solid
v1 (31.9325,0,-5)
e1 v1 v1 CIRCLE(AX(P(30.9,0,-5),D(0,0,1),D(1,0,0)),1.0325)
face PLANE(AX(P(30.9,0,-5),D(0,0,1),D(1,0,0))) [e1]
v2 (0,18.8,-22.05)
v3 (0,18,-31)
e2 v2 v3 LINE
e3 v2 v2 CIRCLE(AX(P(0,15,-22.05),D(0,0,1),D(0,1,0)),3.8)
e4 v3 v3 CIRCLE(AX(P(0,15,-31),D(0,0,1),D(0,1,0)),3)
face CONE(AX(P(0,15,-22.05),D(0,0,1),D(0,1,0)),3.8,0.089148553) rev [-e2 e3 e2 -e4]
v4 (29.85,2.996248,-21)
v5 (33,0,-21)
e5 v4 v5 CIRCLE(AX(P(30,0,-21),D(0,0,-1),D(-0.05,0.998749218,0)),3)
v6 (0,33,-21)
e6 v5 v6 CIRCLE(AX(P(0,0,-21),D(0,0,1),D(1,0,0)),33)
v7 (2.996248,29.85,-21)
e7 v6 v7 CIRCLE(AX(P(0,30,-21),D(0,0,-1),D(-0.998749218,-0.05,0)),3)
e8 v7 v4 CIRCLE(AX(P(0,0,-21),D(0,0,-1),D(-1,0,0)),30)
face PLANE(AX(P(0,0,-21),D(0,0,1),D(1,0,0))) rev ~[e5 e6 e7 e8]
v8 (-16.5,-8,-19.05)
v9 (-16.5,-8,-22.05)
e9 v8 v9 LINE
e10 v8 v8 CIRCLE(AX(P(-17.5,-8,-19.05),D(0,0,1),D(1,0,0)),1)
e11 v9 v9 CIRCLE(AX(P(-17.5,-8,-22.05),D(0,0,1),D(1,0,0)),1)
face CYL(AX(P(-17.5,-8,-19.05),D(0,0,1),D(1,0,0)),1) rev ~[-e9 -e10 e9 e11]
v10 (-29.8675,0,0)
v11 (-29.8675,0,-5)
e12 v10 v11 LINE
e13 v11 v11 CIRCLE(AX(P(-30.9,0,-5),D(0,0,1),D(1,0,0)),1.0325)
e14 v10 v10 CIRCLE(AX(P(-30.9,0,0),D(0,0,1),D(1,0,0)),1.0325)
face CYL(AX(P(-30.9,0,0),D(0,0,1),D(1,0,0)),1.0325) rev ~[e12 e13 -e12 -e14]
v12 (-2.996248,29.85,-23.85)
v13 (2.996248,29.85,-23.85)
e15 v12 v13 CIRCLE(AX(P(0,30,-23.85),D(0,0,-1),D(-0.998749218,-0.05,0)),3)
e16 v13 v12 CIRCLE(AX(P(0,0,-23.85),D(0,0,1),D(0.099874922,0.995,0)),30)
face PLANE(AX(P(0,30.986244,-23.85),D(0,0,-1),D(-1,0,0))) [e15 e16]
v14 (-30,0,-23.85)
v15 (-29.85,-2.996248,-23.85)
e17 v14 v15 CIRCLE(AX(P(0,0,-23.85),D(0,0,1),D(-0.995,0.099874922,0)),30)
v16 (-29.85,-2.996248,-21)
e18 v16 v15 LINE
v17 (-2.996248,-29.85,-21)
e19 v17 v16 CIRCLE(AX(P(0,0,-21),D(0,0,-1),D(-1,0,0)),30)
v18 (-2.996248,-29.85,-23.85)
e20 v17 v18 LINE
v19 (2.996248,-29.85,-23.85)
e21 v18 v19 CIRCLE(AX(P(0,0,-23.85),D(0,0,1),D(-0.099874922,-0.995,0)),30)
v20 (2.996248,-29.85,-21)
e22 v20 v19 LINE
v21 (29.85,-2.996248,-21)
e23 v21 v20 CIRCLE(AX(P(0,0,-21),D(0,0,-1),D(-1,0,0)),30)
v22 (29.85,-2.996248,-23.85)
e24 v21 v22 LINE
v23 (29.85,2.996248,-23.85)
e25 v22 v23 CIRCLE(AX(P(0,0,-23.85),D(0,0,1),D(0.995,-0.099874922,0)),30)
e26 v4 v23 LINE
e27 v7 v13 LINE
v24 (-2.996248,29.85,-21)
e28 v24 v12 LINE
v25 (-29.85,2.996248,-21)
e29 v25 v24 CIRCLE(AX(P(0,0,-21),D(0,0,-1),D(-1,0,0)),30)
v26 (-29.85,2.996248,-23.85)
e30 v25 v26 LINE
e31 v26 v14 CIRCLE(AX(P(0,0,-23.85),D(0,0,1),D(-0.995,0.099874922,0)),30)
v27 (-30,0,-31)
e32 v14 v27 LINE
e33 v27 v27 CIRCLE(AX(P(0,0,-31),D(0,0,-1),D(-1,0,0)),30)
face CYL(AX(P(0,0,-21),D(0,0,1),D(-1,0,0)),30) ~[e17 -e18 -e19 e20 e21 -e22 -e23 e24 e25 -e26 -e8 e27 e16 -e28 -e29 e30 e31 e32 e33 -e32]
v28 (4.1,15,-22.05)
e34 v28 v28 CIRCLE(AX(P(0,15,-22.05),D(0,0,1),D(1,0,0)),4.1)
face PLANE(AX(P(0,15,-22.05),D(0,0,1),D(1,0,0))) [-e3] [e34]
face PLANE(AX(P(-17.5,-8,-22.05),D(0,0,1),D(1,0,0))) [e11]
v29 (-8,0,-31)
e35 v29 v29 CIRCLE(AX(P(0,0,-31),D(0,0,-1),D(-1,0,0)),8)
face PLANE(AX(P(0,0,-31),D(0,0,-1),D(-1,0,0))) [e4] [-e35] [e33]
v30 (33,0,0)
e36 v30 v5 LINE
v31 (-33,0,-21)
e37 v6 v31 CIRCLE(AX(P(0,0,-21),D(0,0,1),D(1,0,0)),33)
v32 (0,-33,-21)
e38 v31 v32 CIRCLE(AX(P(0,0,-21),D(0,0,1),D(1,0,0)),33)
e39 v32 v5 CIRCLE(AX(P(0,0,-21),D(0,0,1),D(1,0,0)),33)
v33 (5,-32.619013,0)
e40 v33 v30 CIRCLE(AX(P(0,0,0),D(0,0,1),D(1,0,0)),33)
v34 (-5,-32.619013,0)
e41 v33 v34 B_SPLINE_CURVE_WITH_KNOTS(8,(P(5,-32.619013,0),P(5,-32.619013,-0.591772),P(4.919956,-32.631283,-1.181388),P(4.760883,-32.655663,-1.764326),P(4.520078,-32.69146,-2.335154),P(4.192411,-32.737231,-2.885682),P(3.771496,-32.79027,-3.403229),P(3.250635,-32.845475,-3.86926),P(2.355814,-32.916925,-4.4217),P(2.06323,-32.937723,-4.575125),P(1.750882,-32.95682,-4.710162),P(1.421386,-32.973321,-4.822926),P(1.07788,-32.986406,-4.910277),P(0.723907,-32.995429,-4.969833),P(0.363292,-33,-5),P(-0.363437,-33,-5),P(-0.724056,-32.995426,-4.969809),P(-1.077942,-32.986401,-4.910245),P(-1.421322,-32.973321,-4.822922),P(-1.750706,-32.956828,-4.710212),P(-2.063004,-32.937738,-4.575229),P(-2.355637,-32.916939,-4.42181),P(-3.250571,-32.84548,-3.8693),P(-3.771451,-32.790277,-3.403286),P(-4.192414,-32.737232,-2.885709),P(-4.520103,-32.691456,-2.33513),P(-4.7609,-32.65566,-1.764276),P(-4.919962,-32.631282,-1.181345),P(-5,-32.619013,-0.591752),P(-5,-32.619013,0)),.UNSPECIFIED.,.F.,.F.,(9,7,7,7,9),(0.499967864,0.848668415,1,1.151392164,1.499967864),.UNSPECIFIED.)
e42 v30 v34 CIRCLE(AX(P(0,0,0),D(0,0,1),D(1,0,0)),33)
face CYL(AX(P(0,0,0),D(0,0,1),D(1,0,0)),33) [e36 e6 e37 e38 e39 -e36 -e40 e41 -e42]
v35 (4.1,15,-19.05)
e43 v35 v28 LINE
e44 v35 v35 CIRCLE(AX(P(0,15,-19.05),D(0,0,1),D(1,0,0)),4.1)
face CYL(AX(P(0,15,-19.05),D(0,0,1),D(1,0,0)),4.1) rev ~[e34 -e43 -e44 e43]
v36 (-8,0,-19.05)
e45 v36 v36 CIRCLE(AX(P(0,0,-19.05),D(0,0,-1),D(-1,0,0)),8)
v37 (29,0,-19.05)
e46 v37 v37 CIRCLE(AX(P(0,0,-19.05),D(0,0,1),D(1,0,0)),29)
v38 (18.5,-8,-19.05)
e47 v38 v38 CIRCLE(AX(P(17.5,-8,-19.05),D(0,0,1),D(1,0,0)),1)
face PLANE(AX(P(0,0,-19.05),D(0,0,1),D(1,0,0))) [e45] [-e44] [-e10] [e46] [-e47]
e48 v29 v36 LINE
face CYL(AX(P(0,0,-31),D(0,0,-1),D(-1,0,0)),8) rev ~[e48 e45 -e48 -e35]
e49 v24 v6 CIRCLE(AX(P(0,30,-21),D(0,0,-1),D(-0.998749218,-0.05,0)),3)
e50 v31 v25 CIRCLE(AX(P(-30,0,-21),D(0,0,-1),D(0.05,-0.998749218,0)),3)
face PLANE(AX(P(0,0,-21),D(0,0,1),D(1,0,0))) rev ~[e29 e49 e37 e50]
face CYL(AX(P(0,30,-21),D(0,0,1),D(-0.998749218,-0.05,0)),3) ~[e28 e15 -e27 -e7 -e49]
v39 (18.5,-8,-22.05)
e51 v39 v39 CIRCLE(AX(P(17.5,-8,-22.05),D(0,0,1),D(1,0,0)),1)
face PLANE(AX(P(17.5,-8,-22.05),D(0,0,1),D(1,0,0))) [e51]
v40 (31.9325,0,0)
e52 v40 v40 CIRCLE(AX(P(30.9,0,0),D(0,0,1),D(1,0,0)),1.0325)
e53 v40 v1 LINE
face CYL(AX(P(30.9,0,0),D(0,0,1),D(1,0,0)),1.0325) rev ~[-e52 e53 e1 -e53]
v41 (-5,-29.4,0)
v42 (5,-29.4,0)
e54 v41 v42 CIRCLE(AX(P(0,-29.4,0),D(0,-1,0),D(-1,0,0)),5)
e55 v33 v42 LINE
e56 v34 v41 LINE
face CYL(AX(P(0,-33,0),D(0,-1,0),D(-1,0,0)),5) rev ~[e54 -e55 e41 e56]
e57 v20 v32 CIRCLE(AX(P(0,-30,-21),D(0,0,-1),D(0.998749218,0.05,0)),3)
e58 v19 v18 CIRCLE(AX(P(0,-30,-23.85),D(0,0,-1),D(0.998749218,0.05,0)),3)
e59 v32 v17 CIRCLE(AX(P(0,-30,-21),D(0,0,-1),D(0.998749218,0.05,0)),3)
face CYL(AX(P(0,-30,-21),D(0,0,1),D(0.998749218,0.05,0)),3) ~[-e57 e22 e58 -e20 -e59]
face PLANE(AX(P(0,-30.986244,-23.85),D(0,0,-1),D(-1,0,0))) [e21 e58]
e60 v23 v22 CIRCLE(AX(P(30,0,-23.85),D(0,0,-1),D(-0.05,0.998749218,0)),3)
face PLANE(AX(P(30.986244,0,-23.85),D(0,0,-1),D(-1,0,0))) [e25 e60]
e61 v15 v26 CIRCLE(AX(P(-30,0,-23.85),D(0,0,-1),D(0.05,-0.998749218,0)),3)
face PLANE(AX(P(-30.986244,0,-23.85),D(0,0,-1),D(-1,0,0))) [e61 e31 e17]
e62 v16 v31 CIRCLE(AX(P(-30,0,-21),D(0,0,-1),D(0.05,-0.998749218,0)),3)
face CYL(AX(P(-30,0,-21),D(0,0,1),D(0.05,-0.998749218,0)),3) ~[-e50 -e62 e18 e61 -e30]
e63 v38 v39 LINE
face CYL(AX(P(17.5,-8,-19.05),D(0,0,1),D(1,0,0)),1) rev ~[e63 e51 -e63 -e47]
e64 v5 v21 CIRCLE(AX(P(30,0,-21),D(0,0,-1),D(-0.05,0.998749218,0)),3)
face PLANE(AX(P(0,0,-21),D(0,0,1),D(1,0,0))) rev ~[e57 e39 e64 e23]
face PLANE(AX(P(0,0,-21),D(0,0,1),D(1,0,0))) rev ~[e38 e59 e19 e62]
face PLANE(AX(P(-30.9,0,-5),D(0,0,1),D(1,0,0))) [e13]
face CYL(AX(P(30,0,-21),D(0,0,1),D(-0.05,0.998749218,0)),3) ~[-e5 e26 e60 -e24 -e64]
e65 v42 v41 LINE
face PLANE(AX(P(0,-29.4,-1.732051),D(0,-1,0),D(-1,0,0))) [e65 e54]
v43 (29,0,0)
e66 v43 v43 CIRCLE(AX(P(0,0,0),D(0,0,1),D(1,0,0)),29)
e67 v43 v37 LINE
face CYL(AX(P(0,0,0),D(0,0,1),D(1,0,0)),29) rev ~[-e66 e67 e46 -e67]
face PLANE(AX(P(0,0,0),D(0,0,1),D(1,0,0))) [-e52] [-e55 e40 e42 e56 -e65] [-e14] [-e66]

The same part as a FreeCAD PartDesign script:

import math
import FreeCAD as App
import Part
import Sketcher

doc = App.newDocument("Part")
params = doc.addObject("Spreadsheet::Sheet", "Params")
for row, (alias, value) in enumerate([
    ("sketch1_diameter", "66 mm"),
    ("pad1_length", "21 mm"),
    ("sketch2_diameter", "58 mm"),
    ("pocket1_length", "19.05 mm"),
    ("sketch3_diameter", "60 mm"),
    ("pad2_length", "10 mm"),
    ("sketch4_radius", "3 mm"),
    ("sketch4_radius2", "30 mm"),
    ("pad3_length", "2.85 mm"),
    ("sketch5_diameter", "16 mm"),
    ("sketch5_diameter2", "6 mm"),
    ("sketch6_diameter", "8.2 mm"),
    ("pocket3_length", "3 mm"),
    ("sketch7_width", "0.8 mm"),
    ("sketch7_height", "8.95 mm"),
    ("groove_angle", "360 deg"),
    ("pocket4_length", "5 mm"),
    ("sketch9_radius", "5 mm"),
    ("pocket5_length", "3.6 mm"),
    ("sketch10_diameter", "2 mm"),
    ("pocket6_length", "3 mm"),
], start=1):
    params.set(f"A{row}", alias)
    params.set(f"B{row}", "=" + value)
    params.setAlias(f"B{row}", alias)

body = doc.addObject("PartDesign::Body", "Body")

# Sketch on XY plane
sketch1 = body.newObject("Sketcher::SketchObject", "Sketch")
sketch1.AttachmentSupport = (doc.getObject("XY_Plane"), [""])
sketch1.MapMode = "FlatFace"
sketch1.addGeometry(Part.Circle(App.Vector(0, 0, 0), App.Vector(0, 0, 1), 33), False)
sketch1.addConstraint([
    Sketcher.Constraint("Coincident", 0, 3, -1, 1),
    Sketcher.Constraint("Diameter", 0, 66.0),
])
sketch1.setExpression("Constraints[1]", "Params.sketch1_diameter")
pad1 = body.newObject("PartDesign::Pad", "Pad")
pad1.Profile = sketch1
pad1.setExpression("Length", "Params.pad1_length")
pad1.Reversed = True

# Sketch on XY plane
sketch2 = body.newObject("Sketcher::SketchObject", "Sketch001")
sketch2.AttachmentSupport = (doc.getObject("XY_Plane"), [""])
sketch2.MapMode = "FlatFace"
sketch2.addGeometry(Part.Circle(App.Vector(0, 0, 0), App.Vector(0, 0, 1), 29), False)
sketch2.addConstraint([
    Sketcher.Constraint("Coincident", 0, 3, -1, 1),
    Sketcher.Constraint("Diameter", 0, 58.0),
])
sketch2.setExpression("Constraints[1]", "Params.sketch2_diameter")
pocket1 = body.newObject("PartDesign::Pocket", "Pocket")
pocket1.Profile = sketch2
pocket1.setExpression("Length", "Params.pocket1_length")

# Sketch on XY plane
sketch3 = body.newObject("Sketcher::SketchObject", "Sketch002")
sketch3.AttachmentSupport = (doc.getObject("XY_Plane"), [""])
sketch3.MapMode = "FlatFace"
sketch3.AttachmentOffset = App.Placement(App.Vector(0, 0, -21), App.Rotation())
sketch3.addGeometry(Part.Circle(App.Vector(0, 0, 0), App.Vector(0, 0, 1), 30), False)
sketch3.addConstraint([
    Sketcher.Constraint("Coincident", 0, 3, -1, 1),
    Sketcher.Constraint("Diameter", 0, 60.0),
])
sketch3.setExpression("Constraints[1]", "Params.sketch3_diameter")
pad2 = body.newObject("PartDesign::Pad", "Pad001")
pad2.Profile = sketch3
pad2.setExpression("Length", "Params.pad2_length")
pad2.Reversed = True

# Sketch on XY plane
sketch4 = body.newObject("Sketcher::SketchObject", "Sketch003")
sketch4.AttachmentSupport = (doc.getObject("XY_Plane"), [""])
sketch4.MapMode = "FlatFace"
sketch4.AttachmentOffset = App.Placement(App.Vector(0, 0, -21), App.Rotation())
sketch4.addGeometry([
    Part.ArcOfCircle(Part.Circle(App.Vector(30, 0, 0), App.Vector(0, 0, 1), 3), math.radians(-93), math.radians(93)),  # 0
    Part.ArcOfCircle(Part.Circle(App.Vector(0, 0, 0), App.Vector(0, 0, 1), 30), math.radians(-5.73), math.radians(5.73)),  # 1
    Part.ArcOfCircle(Part.Circle(App.Vector(0, 30, 0), App.Vector(0, 0, 1), 3), math.radians(-3), math.radians(183)),  # 2
    Part.ArcOfCircle(Part.Circle(App.Vector(0, 0, 0), App.Vector(0, 0, 1), 30), math.radians(84.27), math.radians(95.73)),  # 3
    Part.ArcOfCircle(Part.Circle(App.Vector(-30, 0, 0), App.Vector(0, 0, 1), 3), math.radians(87), math.radians(273)),  # 4
    Part.ArcOfCircle(Part.Circle(App.Vector(0, 0, 0), App.Vector(0, 0, 1), 30), math.radians(174.27), math.radians(185.73)),  # 5
    Part.ArcOfCircle(Part.Circle(App.Vector(0, -30, 0), App.Vector(0, 0, 1), 3), math.radians(177), math.radians(363)),  # 6
    Part.ArcOfCircle(Part.Circle(App.Vector(0, 0, 0), App.Vector(0, 0, 1), 30), math.radians(-95.73), math.radians(-84.27)),  # 7
], False)
sketch4.addConstraint([
    Sketcher.Constraint("Coincident", 0, 1, 1, 1),
    Sketcher.Constraint("Coincident", 1, 2, 0, 2),
    Sketcher.Constraint("Coincident", 2, 1, 3, 1),
    Sketcher.Constraint("Coincident", 3, 2, 2, 2),
    Sketcher.Constraint("Coincident", 4, 1, 5, 1),
    Sketcher.Constraint("Coincident", 5, 2, 4, 2),
    Sketcher.Constraint("Coincident", 6, 1, 7, 1),
    Sketcher.Constraint("Coincident", 7, 2, 6, 2),
    Sketcher.Constraint("Coincident", 1, 3, -1, 1),
    Sketcher.Constraint("Coincident", 3, 3, -1, 1),
    Sketcher.Constraint("Coincident", 5, 3, -1, 1),
    Sketcher.Constraint("Coincident", 7, 3, -1, 1),
    Sketcher.Constraint("Equal", 0, 2),
    Sketcher.Constraint("Equal", 1, 3),
    Sketcher.Constraint("Equal", 2, 4),
    Sketcher.Constraint("Equal", 3, 5),
    Sketcher.Constraint("Equal", 4, 6),
    Sketcher.Constraint("Equal", 5, 7),
    Sketcher.Constraint("Symmetric", 0, 3, 4, 3, -1, 1),
    Sketcher.Constraint("Symmetric", 2, 3, 6, 3, -1, 1),
    Sketcher.Constraint("PointOnObject", 0, 3, -1),
    Sketcher.Constraint("PointOnObject", 2, 3, -2),
    Sketcher.Constraint("Radius", 0, 3.0),
    Sketcher.Constraint("Radius", 1, 30.0),
    Sketcher.Constraint("DistanceX", -1, 1, 0, 3, 30.0),
    Sketcher.Constraint("DistanceY", -1, 1, 2, 3, 30.0),
])
sketch4.setExpression("Constraints[22]", "Params.sketch4_radius")
sketch4.setExpression("Constraints[23]", "Params.sketch4_radius2")
pad3 = body.newObject("PartDesign::Pad", "Pad002")
pad3.Profile = sketch4
pad3.setExpression("Length", "Params.pad3_length")
pad3.Reversed = True

# Sketch on XY plane
sketch5 = body.newObject("Sketcher::SketchObject", "Sketch004")
sketch5.AttachmentSupport = (doc.getObject("XY_Plane"), [""])
sketch5.MapMode = "FlatFace"
sketch5.AttachmentOffset = App.Placement(App.Vector(0, 0, -31), App.Rotation())
sketch5.addGeometry([
    Part.Circle(App.Vector(0, 0, 0), App.Vector(0, 0, 1), 8),
    Part.Circle(App.Vector(0, 15, 0), App.Vector(0, 0, 1), 3),
], False)
sketch5.addConstraint([
    Sketcher.Constraint("Coincident", 0, 3, -1, 1),
    Sketcher.Constraint("PointOnObject", 1, 3, -2),
    Sketcher.Constraint("Diameter", 0, 16.0),
    Sketcher.Constraint("Diameter", 1, 6.0),
    Sketcher.Constraint("DistanceY", -1, 1, 1, 3, 15.0),
])
sketch5.setExpression("Constraints[2]", "Params.sketch5_diameter")
sketch5.setExpression("Constraints[3]", "Params.sketch5_diameter2")
pocket2 = body.newObject("PartDesign::Pocket", "Pocket001")
pocket2.Profile = sketch5
pocket2.Type = "ThroughAll"
pocket2.Reversed = True

# Sketch on XY plane
sketch6 = body.newObject("Sketcher::SketchObject", "Sketch005")
sketch6.AttachmentSupport = (doc.getObject("XY_Plane"), [""])
sketch6.MapMode = "FlatFace"
sketch6.AttachmentOffset = App.Placement(App.Vector(0, 0, -19.05), App.Rotation())
sketch6.addGeometry(Part.Circle(App.Vector(0, 15, 0), App.Vector(0, 0, 1), 4.1), False)
sketch6.addConstraint([
    Sketcher.Constraint("PointOnObject", 0, 3, -2),
    Sketcher.Constraint("Diameter", 0, 8.2),
    Sketcher.Constraint("DistanceY", -1, 1, 0, 3, 15.0),
])
sketch6.setExpression("Constraints[1]", "Params.sketch6_diameter")
pocket3 = body.newObject("PartDesign::Pocket", "Pocket002")
pocket3.Profile = sketch6
pocket3.setExpression("Length", "Params.pocket3_length")

# Sketch on YZ plane
sketch7 = body.newObject("Sketcher::SketchObject", "Sketch006")
sketch7.AttachmentSupport = (doc.getObject("YZ_Plane"), [""])
sketch7.MapMode = "FlatFace"
sketch7.addGeometry([
    Part.LineSegment(App.Vector(18.8, -22.1, 0), App.Vector(18, -22.1, 0)),
    Part.LineSegment(App.Vector(18, -22.1, 0), App.Vector(18, -31, 0)),
    Part.LineSegment(App.Vector(18, -31, 0), App.Vector(18.8, -22.1, 0)),
], False)
sketch7.addGeometry(Part.LineSegment(App.Vector(15, -31, 0), App.Vector(15, -22.1, 0)), True)  # axis
sketch7.addConstraint([
    Sketcher.Constraint("Coincident", 0, 2, 1, 1),
    Sketcher.Constraint("Coincident", 1, 2, 2, 1),
    Sketcher.Constraint("Coincident", 2, 2, 0, 1),
    Sketcher.Constraint("Horizontal", 0),
    Sketcher.Constraint("Vertical", 1),
    Sketcher.Constraint("Vertical", 3),
    Sketcher.Constraint("Horizontal", 1, 2, 3, 1),
    Sketcher.Constraint("Horizontal", 2, 2, 3, 2),
    Sketcher.Constraint("DistanceX", 0, 2, 0, 1, 0.8),
    Sketcher.Constraint("DistanceX", -1, 1, 0, 2, 18.0),
    Sketcher.Constraint("DistanceY", 1, 2, -1, 1, 31.0),
    Sketcher.Constraint("DistanceX", -1, 1, 3, 1, 15.0),
    Sketcher.Constraint("DistanceY", 1, 2, 1, 1, 8.95),
])
sketch7.setExpression("Constraints[8]", "Params.sketch7_width")
sketch7.setExpression("Constraints[12]", "Params.sketch7_height")
groove = body.newObject("PartDesign::Groove", "Groove")
groove.Profile = sketch7
groove.ReferenceAxis = (sketch7, ["Axis0"])
groove.setExpression("Angle", "Params.groove_angle")

# Sketch on XY plane
sketch8 = body.newObject("Sketcher::SketchObject", "Sketch007")
sketch8.AttachmentSupport = (doc.getObject("XY_Plane"), [""])
sketch8.MapMode = "FlatFace"
sketch8.addGeometry([
    Part.Circle(App.Vector(-30.9, 0, 0), App.Vector(0, 0, 1), 1),
    Part.Circle(App.Vector(30.9, 0, 0), App.Vector(0, 0, 1), 1),
], False)
sketch8.addConstraint([
    Sketcher.Constraint("Equal", 0, 1),
    Sketcher.Constraint("Symmetric", 0, 3, 1, 3, -1, 1),
    Sketcher.Constraint("PointOnObject", 0, 3, -1),
    Sketcher.Constraint("Diameter", 0, 2.065),
    Sketcher.Constraint("DistanceX", 0, 3, -1, 1, 30.9),
])
pocket4 = body.newObject("PartDesign::Pocket", "Pocket003")
pocket4.Profile = sketch8
pocket4.setExpression("Length", "Params.pocket4_length")

# Sketch on XZ plane
sketch9 = body.newObject("Sketcher::SketchObject", "Sketch008")
sketch9.AttachmentSupport = (doc.getObject("XZ_Plane"), [""])
sketch9.MapMode = "FlatFace"
sketch9.AttachmentOffset = App.Placement(App.Vector(0, 0, 33), App.Rotation())
sketch9.addGeometry([
    Part.LineSegment(App.Vector(5, 0, 0), App.Vector(-5, 0, 0)),
    Part.ArcOfCircle(Part.Circle(App.Vector(0, 0, 0), App.Vector(0, 0, 1), 5), math.radians(180), math.radians(360)),
], False)
sketch9.addConstraint([
    Sketcher.Constraint("Coincident", 0, 1, 1, 2),
    Sketcher.Constraint("Coincident", 1, 1, 0, 2),
    Sketcher.Constraint("Horizontal", 0),
    Sketcher.Constraint("Coincident", 1, 3, -1, 1),
    Sketcher.Constraint("PointOnObject", 0, 1, -1),
    Sketcher.Constraint("Radius", 1, 5.0),
])
sketch9.setExpression("Constraints[5]", "Params.sketch9_radius")
pocket5 = body.newObject("PartDesign::Pocket", "Pocket004")
pocket5.Profile = sketch9
pocket5.setExpression("Length", "Params.pocket5_length")

# Sketch on XY plane
sketch10 = body.newObject("Sketcher::SketchObject", "Sketch009")
sketch10.AttachmentSupport = (doc.getObject("XY_Plane"), [""])
sketch10.MapMode = "FlatFace"
sketch10.AttachmentOffset = App.Placement(App.Vector(0, 0, -19.05), App.Rotation())
sketch10.addGeometry([
    Part.Circle(App.Vector(17.5, -8, 0), App.Vector(0, 0, 1), 1),
    Part.Circle(App.Vector(-17.5, -8, 0), App.Vector(0, 0, 1), 1),
], False)
sketch10.addConstraint([
    Sketcher.Constraint("Equal", 0, 1),
    Sketcher.Constraint("Symmetric", 0, 3, 1, 3, -2),
    Sketcher.Constraint("Diameter", 0, 2.0),
    Sketcher.Constraint("DistanceY", 0, 3, -1, 1, 8.0),
    Sketcher.Constraint("DistanceX", 1, 3, 0, 3, 35.0),
])
sketch10.setExpression("Constraints[2]", "Params.sketch10_diameter")
pocket6 = body.newObject("PartDesign::Pocket", "Pocket005")
pocket6.Profile = sketch10
pocket6.setExpression("Length", "Params.pocket6_length")

doc.recompute()
